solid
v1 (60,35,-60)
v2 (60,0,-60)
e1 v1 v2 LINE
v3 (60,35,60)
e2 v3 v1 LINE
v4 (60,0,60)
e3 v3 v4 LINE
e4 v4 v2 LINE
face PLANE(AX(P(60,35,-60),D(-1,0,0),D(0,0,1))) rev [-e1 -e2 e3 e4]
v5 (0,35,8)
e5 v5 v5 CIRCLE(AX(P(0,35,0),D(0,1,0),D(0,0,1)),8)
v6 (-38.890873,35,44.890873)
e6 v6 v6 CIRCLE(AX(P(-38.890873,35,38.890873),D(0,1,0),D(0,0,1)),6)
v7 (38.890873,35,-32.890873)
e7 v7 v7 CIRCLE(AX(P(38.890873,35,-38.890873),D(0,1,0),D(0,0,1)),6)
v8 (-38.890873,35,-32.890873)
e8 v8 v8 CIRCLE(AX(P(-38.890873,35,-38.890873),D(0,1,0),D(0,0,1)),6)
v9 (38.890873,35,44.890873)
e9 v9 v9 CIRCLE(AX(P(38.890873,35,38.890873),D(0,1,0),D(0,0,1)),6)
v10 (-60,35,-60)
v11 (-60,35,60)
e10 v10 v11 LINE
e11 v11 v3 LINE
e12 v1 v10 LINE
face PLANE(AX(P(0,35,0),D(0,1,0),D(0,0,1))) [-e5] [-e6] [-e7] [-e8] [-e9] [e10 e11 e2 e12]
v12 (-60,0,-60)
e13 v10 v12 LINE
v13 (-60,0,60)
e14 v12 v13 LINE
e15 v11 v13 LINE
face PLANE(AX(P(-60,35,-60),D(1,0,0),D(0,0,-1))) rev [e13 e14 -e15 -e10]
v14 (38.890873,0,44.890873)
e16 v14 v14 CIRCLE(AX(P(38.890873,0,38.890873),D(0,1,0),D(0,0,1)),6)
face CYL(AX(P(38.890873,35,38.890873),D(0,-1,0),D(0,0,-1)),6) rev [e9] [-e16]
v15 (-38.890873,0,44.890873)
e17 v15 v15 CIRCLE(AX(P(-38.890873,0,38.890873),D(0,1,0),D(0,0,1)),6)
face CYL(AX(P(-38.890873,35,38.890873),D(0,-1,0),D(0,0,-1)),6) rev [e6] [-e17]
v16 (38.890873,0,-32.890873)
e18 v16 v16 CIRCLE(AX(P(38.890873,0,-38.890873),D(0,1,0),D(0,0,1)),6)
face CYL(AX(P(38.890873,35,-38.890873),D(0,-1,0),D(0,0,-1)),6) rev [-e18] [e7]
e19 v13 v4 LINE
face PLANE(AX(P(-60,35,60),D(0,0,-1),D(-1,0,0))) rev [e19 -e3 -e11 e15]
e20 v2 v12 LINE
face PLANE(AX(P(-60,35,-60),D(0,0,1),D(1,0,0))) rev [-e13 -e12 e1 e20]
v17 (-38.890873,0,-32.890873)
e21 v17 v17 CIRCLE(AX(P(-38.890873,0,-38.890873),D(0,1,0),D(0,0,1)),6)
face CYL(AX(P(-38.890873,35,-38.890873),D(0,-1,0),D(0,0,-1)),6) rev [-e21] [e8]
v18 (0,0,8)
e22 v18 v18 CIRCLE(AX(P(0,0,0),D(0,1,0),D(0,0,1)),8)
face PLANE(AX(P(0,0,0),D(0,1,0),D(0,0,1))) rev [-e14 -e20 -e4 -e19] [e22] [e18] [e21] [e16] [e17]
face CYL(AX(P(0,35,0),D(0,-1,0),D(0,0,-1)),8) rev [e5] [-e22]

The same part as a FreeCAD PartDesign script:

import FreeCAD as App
import Part
import Sketcher

V = App.Vector
Q = App.Units.Quantity


def add_polygon(sketch, points):
    """Adds a closed chain of lines whose ends are joined by coincident constraints."""
    first, n = sketch.GeometryCount, len(points)
    for a, b in zip(points, points[1:] + points[:1]):
        sketch.addGeometry(Part.LineSegment(App.Vector(*a, 0), App.Vector(*b, 0)), False)
    for i in range(n):
        sketch.addConstraint(Sketcher.Constraint("Coincident", first + i, 2, first + (i + 1) % n, 1))

doc = App.newDocument("Part")
params = doc.addObject("Spreadsheet::Sheet", "Params")
for row, (alias, value) in enumerate([
    ("sketch1_diameter", "12 mm"),
    ("sketch1_diameter2", "16 mm"),
    ("sketch1_width", "120 mm"),
    ("pad1_length", "35 mm"),
], start=1):
    params.set(f"A{row}", alias)
    params.set(f"B{row}", "=" + value)
    params.setAlias(f"B{row}", alias)

body = doc.addObject("PartDesign::Body", "Body")

# Sketch on XZ plane
sketch1 = body.newObject("Sketcher::SketchObject", "Sketch")
sketch1.AttachmentSupport = (doc.getObject("XZ_Plane"), [""])
sketch1.MapMode = "FlatFace"
add_polygon(sketch1, [(-60, -60), (-60, 60), (60, 60), (60, -60)])  # lines 0-3
sketch1.addGeometry(Part.Circle(V(-38.890873, 38.890873, 0), V(0, 0, 1), 6), False)  # 4
sketch1.addGeometry(Part.Circle(V(38.890873, 38.890873, 0), V(0, 0, 1), 6), False)  # 5
sketch1.addGeometry(Part.Circle(V(-38.890873, -38.890873, 0), V(0, 0, 1), 6), False)  # 6
sketch1.addGeometry(Part.Circle(V(0, 0, 0), V(0, 0, 1), 8), False)  # 7
sketch1.addGeometry(Part.Circle(V(38.890873, -38.890873, 0), V(0, 0, 1), 6), False)  # 8
sketch1.addConstraint([
    Sketcher.Constraint("Vertical", 0),
    Sketcher.Constraint("Horizontal", 1),
    Sketcher.Constraint("Vertical", 2),
    Sketcher.Constraint("Horizontal", 3),
    Sketcher.Constraint("Coincident", 7, 3, -1, 1),
    Sketcher.Constraint("Equal", 4, 5),
    Sketcher.Constraint("Equal", 5, 6),
    Sketcher.Constraint("Equal", 6, 8),
    Sketcher.Constraint("Symmetric", 5, 3, 6, 3, -1, 1),
    Sketcher.Constraint("Symmetric", 4, 3, 8, 3, -1, 1),
    Sketcher.Constraint("Symmetric", 0, 2, 2, 2, -1, 1),
    Sketcher.Constraint("Symmetric", 4, 3, 5, 3, -2),
    Sketcher.Constraint("Equal", 3, 0),
    Sketcher.Constraint("Diameter", 4, Q("12 mm")),
    Sketcher.Constraint("Diameter", 7, Q("16 mm")),
    Sketcher.Constraint("DistanceX", 1, 1, 1, 2, Q("120 mm")),
    Sketcher.Constraint("DistanceX", 4, 3, -1, 1, Q("38.890873 mm")),
    Sketcher.Constraint("DistanceY", -1, 1, 4, 3, Q("38.890873 mm")),
])
sketch1.setExpression("Constraints[17]", "Params.sketch1_diameter")
sketch1.setExpression("Constraints[18]", "Params.sketch1_diameter2")
sketch1.setExpression("Constraints[19]", "Params.sketch1_width")
pad1 = body.newObject("PartDesign::Pad", "Pad")
pad1.Profile = sketch1
pad1.setExpression("Length", "Params.pad1_length")
pad1.Reversed = True

doc.recompute()
